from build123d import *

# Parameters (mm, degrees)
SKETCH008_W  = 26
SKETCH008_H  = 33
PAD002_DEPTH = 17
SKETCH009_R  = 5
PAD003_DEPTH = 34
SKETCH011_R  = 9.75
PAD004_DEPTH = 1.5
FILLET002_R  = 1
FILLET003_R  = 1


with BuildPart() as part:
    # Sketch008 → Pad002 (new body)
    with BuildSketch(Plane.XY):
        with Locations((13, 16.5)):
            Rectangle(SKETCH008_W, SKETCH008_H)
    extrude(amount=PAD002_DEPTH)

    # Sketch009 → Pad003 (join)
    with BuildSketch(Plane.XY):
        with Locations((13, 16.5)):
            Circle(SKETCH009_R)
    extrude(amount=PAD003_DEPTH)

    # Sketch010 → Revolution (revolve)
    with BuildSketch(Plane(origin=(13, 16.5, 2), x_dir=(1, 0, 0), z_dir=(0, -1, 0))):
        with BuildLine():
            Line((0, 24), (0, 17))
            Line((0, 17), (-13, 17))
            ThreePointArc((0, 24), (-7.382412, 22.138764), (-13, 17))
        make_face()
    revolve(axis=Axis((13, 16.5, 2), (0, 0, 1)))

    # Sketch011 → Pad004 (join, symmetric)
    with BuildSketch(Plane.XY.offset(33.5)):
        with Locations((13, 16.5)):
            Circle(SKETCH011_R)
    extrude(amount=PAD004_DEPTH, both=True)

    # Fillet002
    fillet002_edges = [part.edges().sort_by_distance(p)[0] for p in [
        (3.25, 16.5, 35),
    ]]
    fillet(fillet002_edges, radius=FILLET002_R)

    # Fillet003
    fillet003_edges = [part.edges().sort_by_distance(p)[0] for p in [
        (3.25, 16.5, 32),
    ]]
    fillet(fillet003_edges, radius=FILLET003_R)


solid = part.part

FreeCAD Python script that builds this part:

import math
import FreeCAD as App
import Part
import Sketcher
from FreeCAD import Vector
Q = App.Units.Quantity


def edges_at(feature, points):
    """Names of the edges that pass closest to the given points."""
    edges = feature.Shape.Edges
    near = lambda p: min(range(len(edges)), key=lambda i: edges[i].distToShape(Part.Vertex(*p))[0])
    return sorted({f"Edge{near(p) + 1}" for p in points})


def add_polygon(sketch, points):
    """Adds a closed chain of lines whose ends are joined by coincident constraints."""
    first, n = sketch.GeometryCount, len(points)
    for a, b in zip(points, points[1:] + points[:1]):
        sketch.addGeometry(Part.LineSegment(App.Vector(*a, 0), App.Vector(*b, 0)), False)
    for i in range(n):
        sketch.addConstraint(Sketcher.Constraint("Coincident", first + i, 2, first + (i + 1) % n, 1))

doc = App.newDocument("Part")
params = doc.addObject("Spreadsheet::Sheet", "Params")
for row, (alias, value) in enumerate([
    ("sketch1_width", "26 mm"),
    ("sketch1_height", "33 mm"),
    ("pad1_length", "17 mm"),
    ("sketch2_diameter", "10 mm"),
    ("pad2_length", "34 mm"),
    ("sketch3_width", "13 mm"),
    ("sketch3_height", "7 mm"),
    ("revolution_angle", "360 deg"),
    ("sketch4_diameter", "19.5 mm"),
    ("pad3_length", "3 mm"),
    ("fillet_radius", "1 mm"),
    ("fillet2_radius", "1 mm"),
], start=1):
    params.set(f"A{row}", alias)
    params.set(f"B{row}", "=" + value)
    params.setAlias(f"B{row}", alias)

body = doc.addObject("PartDesign::Body", "Body")

# Sketch on XY plane
sketch1 = body.newObject("Sketcher::SketchObject", "Sketch")
sketch1.AttachmentSupport = (doc.getObject("XY_Plane"), [""])
sketch1.MapMode = "FlatFace"
add_polygon(sketch1, [(0, 33), (0, 0), (26, 0), (26, 33)])  # lines 0-3
sketch1.addConstraint([
    Sketcher.Constraint("Vertical", 0),
    Sketcher.Constraint("Horizontal", 1),
    Sketcher.Constraint("Vertical", 2),
    Sketcher.Constraint("Horizontal", 3),
    Sketcher.Constraint("Coincident", 0, 2, -1, 1),
    Sketcher.Constraint("DistanceX", 1, 1, 1, 2, Q("26 mm")),
    Sketcher.Constraint("DistanceY", 0, 2, 0, 1, Q("33 mm")),
])
sketch1.setExpression("Constraints[9]", "Params.sketch1_width")
sketch1.setExpression("Constraints[10]", "Params.sketch1_height")
pad1 = body.newObject("PartDesign::Pad", "Pad")
pad1.Profile = sketch1
pad1.setExpression("Length", "Params.pad1_length")

# Sketch on XY plane
sketch2 = body.newObject("Sketcher::SketchObject", "Sketch001")
sketch2.AttachmentSupport = (doc.getObject("XY_Plane"), [""])
sketch2.MapMode = "FlatFace"
sketch2.addGeometry(Part.Circle(Vector(13, 16.5, 0), Vector(0, 0, 1), 5), False)
sketch2.addConstraint([
    Sketcher.Constraint("Diameter", 0, Q("10 mm")),
    Sketcher.Constraint("DistanceX", -1, 1, 0, 3, Q("13 mm")),
    Sketcher.Constraint("DistanceY", -1, 1, 0, 3, Q("16.5 mm")),
])
sketch2.setExpression("Constraints[0]", "Params.sketch2_diameter")
pad2 = body.newObject("PartDesign::Pad", "Pad001")
pad2.Profile = sketch2
pad2.setExpression("Length", "Params.pad2_length")

# Sketch on XZ plane
sketch3 = body.newObject("Sketcher::SketchObject", "Sketch002")
sketch3.AttachmentSupport = (doc.getObject("XZ_Plane"), [""])
sketch3.MapMode = "FlatFace"
sketch3.AttachmentOffset = App.Placement(Vector(0, 0, -16.5), App.Rotation())
sketch3.addGeometry([
    Part.LineSegment(Vector(13, 19, 0), Vector(13, 26, 0)),
    Part.ArcOfCircle(Part.Circle(Vector(13, 10.428571, 0), Vector(0, 0, 1), 15.571429), math.radians(90), math.radians(146.601511)),
    Part.LineSegment(Vector(0, 19, 0), Vector(13, 19, 0)),
], False)
sketch3.addGeometry(Part.LineSegment(Vector(13, 10.428571, 0), Vector(13, 26, 0)), True)  # axis
sketch3.addConstraint([
    Sketcher.Constraint("Coincident", 0, 2, 1, 1),
    Sketcher.Constraint("Coincident", 1, 2, 2, 1),
    Sketcher.Constraint("Coincident", 2, 2, 0, 1),
    Sketcher.Constraint("Vertical", 0),
    Sketcher.Constraint("Horizontal", 2),
    Sketcher.Constraint("Vertical", 3),
    Sketcher.Constraint("Coincident", 3, 1, 1, 3),
    Sketcher.Constraint("Coincident", 3, 2, 0, 2),
    Sketcher.Constraint("PointOnObject", 1, 2, -2),
    Sketcher.Constraint("DistanceX", 2, 1, 2, 2, Q("13 mm")),
    Sketcher.Constraint("DistanceY", 0, 1, 0, 2, Q("7 mm")),
    Sketcher.Constraint("DistanceY", -1, 1, 0, 2, Q("26 mm")),
])
sketch3.setExpression("Constraints[9]", "Params.sketch3_width")
sketch3.setExpression("Constraints[10]", "Params.sketch3_height")
revolution = body.newObject("PartDesign::Revolution", "Revolution")
revolution.Profile = sketch3
revolution.ReferenceAxis = (sketch3, ["Axis0"])
revolution.setExpression("Angle", "Params.revolution_angle")

# Sketch on XY plane
sketch4 = body.newObject("Sketcher::SketchObject", "Sketch003")
sketch4.AttachmentSupport = (doc.getObject("XY_Plane"), [""])
sketch4.MapMode = "FlatFace"
sketch4.AttachmentOffset = App.Placement(Vector(0, 0, 33.5), App.Rotation())
sketch4.addGeometry(Part.Circle(Vector(13, 16.5, 0), Vector(0, 0, 1), 9.75), False)
sketch4.addConstraint([
    Sketcher.Constraint("Diameter", 0, Q("19.5 mm")),
    Sketcher.Constraint("DistanceX", -1, 1, 0, 3, Q("13 mm")),
    Sketcher.Constraint("DistanceY", -1, 1, 0, 3, Q("16.5 mm")),
])
sketch4.setExpression("Constraints[0]", "Params.sketch4_diameter")
pad3 = body.newObject("PartDesign::Pad", "Pad002")
pad3.Profile = sketch4
pad3.setExpression("Length", "Params.pad3_length")
pad3.Midplane = True
doc.recompute()

fillet = body.newObject("PartDesign::Fillet", "Fillet")
fillet.Base = (pad3, edges_at(pad3, [(3.25, 16.5, 35)]))
fillet.setExpression("Radius", "Params.fillet_radius")
doc.recompute()

fillet2 = body.newObject("PartDesign::Fillet", "Fillet001")
fillet2.Base = (fillet, edges_at(fillet, [(3.25, 16.5, 32)]))
fillet2.setExpression("Radius", "Params.fillet2_radius")

doc.recompute()
